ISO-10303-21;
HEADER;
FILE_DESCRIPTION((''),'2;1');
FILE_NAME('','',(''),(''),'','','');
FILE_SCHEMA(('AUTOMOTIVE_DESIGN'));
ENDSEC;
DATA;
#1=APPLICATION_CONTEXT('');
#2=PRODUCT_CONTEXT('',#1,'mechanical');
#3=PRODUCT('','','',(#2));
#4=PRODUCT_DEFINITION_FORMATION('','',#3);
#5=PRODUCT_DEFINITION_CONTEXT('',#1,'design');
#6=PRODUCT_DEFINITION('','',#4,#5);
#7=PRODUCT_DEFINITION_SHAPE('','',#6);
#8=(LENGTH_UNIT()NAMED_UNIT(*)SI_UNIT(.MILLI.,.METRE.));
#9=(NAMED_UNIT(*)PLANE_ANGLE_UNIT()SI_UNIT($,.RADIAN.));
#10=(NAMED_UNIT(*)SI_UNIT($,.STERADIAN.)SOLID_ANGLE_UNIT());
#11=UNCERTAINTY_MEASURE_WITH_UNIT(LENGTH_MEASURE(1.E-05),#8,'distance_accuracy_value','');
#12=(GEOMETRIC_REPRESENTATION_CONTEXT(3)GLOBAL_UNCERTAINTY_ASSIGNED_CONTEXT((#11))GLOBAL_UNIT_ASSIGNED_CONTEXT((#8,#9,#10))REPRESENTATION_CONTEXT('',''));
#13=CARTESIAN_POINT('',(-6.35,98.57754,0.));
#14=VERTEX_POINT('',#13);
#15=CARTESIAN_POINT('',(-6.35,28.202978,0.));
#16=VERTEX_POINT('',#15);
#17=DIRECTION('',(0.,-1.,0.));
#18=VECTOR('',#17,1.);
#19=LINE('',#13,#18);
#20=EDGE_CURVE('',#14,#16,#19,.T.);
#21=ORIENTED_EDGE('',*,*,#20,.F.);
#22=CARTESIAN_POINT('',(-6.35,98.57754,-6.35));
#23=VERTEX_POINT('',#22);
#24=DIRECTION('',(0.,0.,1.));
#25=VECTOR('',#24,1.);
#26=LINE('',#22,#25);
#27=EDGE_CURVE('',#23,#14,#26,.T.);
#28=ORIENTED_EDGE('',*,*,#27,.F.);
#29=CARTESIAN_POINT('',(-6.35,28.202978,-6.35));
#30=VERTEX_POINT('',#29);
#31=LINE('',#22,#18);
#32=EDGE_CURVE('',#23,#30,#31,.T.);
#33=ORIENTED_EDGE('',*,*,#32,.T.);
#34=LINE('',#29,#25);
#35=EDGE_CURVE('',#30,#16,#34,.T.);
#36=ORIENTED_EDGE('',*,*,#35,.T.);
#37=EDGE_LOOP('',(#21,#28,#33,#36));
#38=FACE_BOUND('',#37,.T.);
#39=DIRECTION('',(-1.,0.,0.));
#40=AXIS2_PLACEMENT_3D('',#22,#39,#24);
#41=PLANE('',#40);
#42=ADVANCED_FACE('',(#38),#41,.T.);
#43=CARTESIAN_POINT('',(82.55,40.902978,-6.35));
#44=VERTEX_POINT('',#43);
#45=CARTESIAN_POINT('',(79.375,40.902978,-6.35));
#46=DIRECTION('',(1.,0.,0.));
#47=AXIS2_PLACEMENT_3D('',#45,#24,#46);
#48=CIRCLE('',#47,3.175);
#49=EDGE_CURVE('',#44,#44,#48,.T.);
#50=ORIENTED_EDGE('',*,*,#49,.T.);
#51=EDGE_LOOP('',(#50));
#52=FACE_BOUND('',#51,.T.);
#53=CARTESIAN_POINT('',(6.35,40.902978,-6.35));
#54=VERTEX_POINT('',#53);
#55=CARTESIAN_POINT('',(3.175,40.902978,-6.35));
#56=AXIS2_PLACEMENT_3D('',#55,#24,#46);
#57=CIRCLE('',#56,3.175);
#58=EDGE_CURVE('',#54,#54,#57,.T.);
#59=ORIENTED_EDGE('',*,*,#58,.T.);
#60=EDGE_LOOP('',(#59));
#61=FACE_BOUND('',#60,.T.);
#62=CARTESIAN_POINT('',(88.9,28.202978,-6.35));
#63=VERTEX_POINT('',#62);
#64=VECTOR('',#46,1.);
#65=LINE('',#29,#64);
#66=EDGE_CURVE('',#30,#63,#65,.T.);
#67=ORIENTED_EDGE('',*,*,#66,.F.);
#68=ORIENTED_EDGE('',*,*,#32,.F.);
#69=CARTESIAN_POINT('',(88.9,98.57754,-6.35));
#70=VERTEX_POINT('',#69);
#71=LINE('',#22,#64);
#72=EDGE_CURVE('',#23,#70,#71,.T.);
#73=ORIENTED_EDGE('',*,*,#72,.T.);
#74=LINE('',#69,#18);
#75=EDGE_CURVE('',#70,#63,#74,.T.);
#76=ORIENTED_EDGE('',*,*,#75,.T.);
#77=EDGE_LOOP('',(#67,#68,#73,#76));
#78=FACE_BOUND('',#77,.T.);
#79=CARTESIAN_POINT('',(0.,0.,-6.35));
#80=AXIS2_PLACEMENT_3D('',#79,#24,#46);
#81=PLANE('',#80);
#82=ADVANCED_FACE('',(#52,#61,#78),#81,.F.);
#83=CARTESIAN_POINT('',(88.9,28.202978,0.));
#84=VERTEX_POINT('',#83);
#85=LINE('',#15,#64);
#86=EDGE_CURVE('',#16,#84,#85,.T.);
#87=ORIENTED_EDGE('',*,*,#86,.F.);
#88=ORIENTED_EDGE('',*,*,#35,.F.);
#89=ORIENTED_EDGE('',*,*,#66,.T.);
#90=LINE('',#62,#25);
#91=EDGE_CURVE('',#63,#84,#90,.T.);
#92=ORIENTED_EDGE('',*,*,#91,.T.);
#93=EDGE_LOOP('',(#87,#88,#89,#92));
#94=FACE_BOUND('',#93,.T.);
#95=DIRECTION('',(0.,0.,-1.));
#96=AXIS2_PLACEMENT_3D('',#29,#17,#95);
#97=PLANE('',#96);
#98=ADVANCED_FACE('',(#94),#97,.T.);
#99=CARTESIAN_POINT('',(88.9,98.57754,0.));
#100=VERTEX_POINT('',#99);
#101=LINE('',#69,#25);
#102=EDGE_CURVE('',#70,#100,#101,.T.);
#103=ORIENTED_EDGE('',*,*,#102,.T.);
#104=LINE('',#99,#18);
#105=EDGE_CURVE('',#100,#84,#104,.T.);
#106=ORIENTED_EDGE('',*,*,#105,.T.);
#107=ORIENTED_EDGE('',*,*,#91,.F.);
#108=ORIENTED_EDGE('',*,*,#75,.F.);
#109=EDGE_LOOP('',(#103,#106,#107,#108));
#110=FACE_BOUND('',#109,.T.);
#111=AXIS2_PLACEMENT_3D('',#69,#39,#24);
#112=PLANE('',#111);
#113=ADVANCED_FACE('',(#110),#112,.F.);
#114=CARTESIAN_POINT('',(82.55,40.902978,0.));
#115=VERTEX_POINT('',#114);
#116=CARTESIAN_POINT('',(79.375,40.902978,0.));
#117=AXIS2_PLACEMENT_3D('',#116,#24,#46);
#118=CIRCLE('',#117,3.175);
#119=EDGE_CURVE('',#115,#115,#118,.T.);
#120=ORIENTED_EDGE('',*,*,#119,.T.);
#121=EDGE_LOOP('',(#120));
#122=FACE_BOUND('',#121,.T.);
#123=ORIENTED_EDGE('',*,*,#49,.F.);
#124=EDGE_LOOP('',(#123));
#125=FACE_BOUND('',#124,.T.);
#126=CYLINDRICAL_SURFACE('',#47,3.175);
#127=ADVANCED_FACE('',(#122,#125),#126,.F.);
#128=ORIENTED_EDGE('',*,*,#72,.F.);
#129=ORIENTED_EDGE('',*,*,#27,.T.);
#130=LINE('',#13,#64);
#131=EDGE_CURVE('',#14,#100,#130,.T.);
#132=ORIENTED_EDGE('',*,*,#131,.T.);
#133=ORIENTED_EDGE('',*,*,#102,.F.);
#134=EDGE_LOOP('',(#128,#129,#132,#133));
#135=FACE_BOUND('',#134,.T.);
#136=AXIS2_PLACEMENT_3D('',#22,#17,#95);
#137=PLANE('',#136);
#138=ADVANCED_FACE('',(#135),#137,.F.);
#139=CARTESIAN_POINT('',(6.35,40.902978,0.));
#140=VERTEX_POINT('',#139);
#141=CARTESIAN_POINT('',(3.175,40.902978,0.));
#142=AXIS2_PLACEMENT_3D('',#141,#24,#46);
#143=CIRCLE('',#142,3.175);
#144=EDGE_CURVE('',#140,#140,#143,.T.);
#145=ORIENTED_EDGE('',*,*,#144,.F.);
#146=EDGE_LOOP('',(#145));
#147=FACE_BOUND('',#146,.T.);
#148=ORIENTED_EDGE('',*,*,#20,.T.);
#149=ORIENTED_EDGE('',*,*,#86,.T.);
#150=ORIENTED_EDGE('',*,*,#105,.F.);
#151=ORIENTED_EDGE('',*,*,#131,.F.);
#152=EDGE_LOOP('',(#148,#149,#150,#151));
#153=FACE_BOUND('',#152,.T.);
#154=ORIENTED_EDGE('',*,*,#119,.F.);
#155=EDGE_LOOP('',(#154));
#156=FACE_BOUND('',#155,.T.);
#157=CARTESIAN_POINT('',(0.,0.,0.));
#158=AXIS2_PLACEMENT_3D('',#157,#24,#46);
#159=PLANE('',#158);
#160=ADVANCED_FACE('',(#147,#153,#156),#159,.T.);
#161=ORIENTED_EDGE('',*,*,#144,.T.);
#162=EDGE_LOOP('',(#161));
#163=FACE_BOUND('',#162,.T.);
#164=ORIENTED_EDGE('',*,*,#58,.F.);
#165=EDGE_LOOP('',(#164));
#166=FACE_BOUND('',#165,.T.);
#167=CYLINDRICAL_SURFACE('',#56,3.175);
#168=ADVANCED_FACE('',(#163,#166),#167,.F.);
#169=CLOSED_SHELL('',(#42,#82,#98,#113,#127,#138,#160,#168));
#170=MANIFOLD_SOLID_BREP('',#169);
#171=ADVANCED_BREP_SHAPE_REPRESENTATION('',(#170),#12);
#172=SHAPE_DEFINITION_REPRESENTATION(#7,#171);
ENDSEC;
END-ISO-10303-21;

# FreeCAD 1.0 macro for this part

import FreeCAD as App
import Part
import Sketcher
from FreeCAD import Vector
Q = App.Units.Quantity

doc = App.newDocument("Part")
body = doc.addObject("PartDesign::Body", "Body")

# Sketch on XY plane
sketch1 = body.newObject("Sketcher::SketchObject", "Sketch")
sketch1.AttachmentSupport = (doc.getObject("XY_Plane"), [""])
sketch1.MapMode = "FlatFace"
sketch1.addGeometry([
    Part.LineSegment(Vector(-6.35, 98.57754, 0), Vector(-6.35, 28.202978, 0)),
    Part.LineSegment(Vector(-6.35, 28.202978, 0), Vector(88.9, 28.202978, 0)),
    Part.LineSegment(Vector(88.9, 28.202978, 0), Vector(88.9, 98.57754, 0)),
    Part.LineSegment(Vector(88.9, 98.57754, 0), Vector(-6.35, 98.57754, 0)),
], False)
sketch1.addConstraint([
    Sketcher.Constraint("Coincident", 0, 2, 1, 1),
    Sketcher.Constraint("Coincident", 1, 2, 2, 1),
    Sketcher.Constraint("Coincident", 2, 2, 3, 1),
    Sketcher.Constraint("Coincident", 3, 2, 0, 1),
    Sketcher.Constraint("Vertical", 0),
    Sketcher.Constraint("Horizontal", 1),
    Sketcher.Constraint("Vertical", 2),
    Sketcher.Constraint("Horizontal", 3),
    Sketcher.Constraint("DistanceX", 1, 1, 1, 2, Q("3.75 in")),
    Sketcher.Constraint("DistanceX", -1, 1, 1, 2, Q("3.5 in")),
    Sketcher.Constraint("DistanceY", 0, 2, 0, 1, Q("70.374561 mm")),
    Sketcher.Constraint("DistanceY", -1, 1, 0, 2, Q("28.202978 mm")),
])
pad1 = body.newObject("PartDesign::Pad", "Pad")
pad1.Profile = sketch1
pad1.Length = Q("0.25 in")
pad1.Reversed = True

# Sketch on XY plane
sketch2 = body.newObject("Sketcher::SketchObject", "Sketch001")
sketch2.AttachmentSupport = (doc.getObject("XY_Plane"), [""])
sketch2.MapMode = "FlatFace"
sketch2.addGeometry([
    Part.Circle(Vector(79.375, 40.902978, 0), Vector(0, 0, 1), 3.175),
    Part.Circle(Vector(3.175, 40.902978, 0), Vector(0, 0, 1), 3.175),
], False)
sketch2.addConstraint([
    Sketcher.Constraint("Equal", 0, 1),
    Sketcher.Constraint("Horizontal", 0, 3, 1, 3),
    Sketcher.Constraint("Diameter", 0, Q("0.25 in")),
    Sketcher.Constraint("DistanceX", 1, 3, 0, 3, Q("3 in")),
    Sketcher.Constraint("DistanceX", -1, 1, 0, 3, Q("3.125 in")),
    Sketcher.Constraint("DistanceY", -1, 1, 0, 3, Q("40.902978 mm")),
])
pocket1 = body.newObject("PartDesign::Pocket", "Pocket")
pocket1.Profile = sketch2
pocket1.Length = Q("0.25 in")

doc.recompute()
